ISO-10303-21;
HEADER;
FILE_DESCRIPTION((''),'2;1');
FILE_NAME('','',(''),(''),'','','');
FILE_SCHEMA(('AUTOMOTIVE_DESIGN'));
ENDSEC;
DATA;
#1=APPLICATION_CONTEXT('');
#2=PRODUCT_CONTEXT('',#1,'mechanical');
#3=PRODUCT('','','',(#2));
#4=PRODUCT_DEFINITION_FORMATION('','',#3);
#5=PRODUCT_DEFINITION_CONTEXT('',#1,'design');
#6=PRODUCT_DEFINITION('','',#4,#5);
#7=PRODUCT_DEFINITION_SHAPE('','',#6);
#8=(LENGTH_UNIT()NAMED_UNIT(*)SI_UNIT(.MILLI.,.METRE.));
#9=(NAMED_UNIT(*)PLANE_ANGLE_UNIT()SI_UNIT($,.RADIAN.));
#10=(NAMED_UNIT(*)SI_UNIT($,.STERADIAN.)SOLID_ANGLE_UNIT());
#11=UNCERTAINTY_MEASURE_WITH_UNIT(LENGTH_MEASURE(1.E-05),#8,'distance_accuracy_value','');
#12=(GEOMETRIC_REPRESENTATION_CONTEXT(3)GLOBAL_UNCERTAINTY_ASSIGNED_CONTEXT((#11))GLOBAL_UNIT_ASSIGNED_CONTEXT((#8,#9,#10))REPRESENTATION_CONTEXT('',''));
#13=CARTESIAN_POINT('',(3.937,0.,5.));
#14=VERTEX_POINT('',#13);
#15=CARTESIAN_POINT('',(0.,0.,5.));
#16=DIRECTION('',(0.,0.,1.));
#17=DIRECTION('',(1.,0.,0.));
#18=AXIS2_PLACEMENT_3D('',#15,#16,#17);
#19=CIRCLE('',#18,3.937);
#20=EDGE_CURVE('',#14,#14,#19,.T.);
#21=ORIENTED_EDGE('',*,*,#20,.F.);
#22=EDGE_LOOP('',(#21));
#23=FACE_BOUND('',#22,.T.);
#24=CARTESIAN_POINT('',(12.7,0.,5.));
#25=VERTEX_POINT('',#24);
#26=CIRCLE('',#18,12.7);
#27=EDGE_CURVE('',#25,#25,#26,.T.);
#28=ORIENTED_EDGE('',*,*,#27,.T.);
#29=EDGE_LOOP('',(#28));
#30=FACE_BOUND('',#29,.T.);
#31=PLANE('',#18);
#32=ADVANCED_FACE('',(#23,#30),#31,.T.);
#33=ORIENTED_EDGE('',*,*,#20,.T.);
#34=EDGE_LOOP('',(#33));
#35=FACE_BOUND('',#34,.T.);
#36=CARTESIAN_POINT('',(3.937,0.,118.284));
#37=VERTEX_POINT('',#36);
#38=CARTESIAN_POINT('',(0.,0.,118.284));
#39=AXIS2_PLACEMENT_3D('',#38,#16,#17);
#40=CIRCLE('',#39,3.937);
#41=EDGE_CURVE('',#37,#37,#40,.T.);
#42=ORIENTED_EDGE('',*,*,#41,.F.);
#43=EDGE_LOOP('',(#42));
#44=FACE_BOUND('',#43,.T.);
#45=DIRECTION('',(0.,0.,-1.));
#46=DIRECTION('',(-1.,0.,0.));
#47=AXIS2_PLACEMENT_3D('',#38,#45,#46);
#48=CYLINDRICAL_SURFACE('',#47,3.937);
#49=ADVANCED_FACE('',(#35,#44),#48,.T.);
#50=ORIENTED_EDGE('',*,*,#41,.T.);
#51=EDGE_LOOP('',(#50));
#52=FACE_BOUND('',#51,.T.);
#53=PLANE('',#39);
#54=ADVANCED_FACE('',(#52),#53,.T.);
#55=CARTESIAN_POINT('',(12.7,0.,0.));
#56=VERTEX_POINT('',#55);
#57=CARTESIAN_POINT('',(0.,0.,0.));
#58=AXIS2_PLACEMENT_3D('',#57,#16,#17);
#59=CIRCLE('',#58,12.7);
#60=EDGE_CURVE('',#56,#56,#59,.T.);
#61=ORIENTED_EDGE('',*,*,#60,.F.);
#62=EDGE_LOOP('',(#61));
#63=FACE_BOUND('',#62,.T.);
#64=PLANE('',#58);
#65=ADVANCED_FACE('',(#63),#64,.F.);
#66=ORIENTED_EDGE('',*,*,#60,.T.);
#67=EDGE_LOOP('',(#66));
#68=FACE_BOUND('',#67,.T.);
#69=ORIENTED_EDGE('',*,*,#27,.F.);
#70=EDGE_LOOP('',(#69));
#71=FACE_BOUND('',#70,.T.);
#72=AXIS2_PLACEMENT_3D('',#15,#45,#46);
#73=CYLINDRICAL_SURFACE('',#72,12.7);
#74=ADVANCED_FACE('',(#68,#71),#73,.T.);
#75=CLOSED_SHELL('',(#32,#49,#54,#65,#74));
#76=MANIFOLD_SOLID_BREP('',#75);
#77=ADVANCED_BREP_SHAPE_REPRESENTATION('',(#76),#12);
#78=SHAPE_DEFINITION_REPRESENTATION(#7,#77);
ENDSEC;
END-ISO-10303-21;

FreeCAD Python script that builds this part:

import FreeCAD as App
import Part
import Sketcher

V = App.Vector
Q = App.Units.Quantity

doc = App.newDocument("Part")
body = doc.addObject("PartDesign::Body", "Body")

# Sketch on XY plane
sketch1 = body.newObject("Sketcher::SketchObject", "Sketch")
sketch1.AttachmentSupport = (doc.getObject("XY_Plane"), [""])
sketch1.MapMode = "FlatFace"
sketch1.addGeometry(Part.Circle(V(0, 0, 0), V(0, 0, 1), 12.7), False)
sketch1.addConstraint([
    Sketcher.Constraint("Coincident", 0, 3, -1, 1),
    Sketcher.Constraint("Diameter", 0, Q("1 in")),
])
pad1 = body.newObject("PartDesign::Pad", "Pad")
pad1.Profile = sketch1
pad1.Length = 5

# Sketch on XY plane
sketch2 = body.newObject("Sketcher::SketchObject", "Sketch001")
sketch2.AttachmentSupport = (doc.getObject("XY_Plane"), [""])
sketch2.MapMode = "FlatFace"
sketch2.AttachmentOffset = App.Placement(V(0, 0, 5), App.Rotation())
sketch2.addGeometry(Part.Circle(V(0, 0, 0), V(0, 0, 1), 3.937), False)
sketch2.addConstraint([
    Sketcher.Constraint("Coincident", 0, 3, -1, 1),
    Sketcher.Constraint("Diameter", 0, Q("0.31 in")),
])
pad2 = body.newObject("PartDesign::Pad", "Pad001")
pad2.Profile = sketch2
pad2.Length = Q("4.46 in")

doc.recompute()
